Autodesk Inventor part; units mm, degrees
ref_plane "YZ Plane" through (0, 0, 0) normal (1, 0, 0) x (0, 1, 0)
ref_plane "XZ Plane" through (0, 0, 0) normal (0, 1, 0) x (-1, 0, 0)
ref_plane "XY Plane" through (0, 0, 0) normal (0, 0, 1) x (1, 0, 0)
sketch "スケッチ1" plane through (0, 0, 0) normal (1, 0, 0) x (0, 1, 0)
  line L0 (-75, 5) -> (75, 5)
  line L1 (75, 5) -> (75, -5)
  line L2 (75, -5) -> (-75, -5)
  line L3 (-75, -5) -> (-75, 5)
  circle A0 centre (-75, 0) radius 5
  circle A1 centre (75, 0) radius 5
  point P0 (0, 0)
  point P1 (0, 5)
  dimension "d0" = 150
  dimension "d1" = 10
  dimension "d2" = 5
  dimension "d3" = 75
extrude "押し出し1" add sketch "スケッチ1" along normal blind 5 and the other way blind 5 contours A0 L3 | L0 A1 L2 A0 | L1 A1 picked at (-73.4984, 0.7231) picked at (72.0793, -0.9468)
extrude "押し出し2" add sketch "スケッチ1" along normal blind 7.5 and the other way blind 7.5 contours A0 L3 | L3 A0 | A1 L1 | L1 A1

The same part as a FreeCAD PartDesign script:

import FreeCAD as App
import Part
import Sketcher
from FreeCAD import Vector
Q = App.Units.Quantity


def add_polygon(sketch, points):
    """Adds a closed chain of lines whose ends are joined by coincident constraints."""
    first, n = sketch.GeometryCount, len(points)
    for a, b in zip(points, points[1:] + points[:1]):
        sketch.addGeometry(Part.LineSegment(App.Vector(*a, 0), App.Vector(*b, 0)), False)
    for i in range(n):
        sketch.addConstraint(Sketcher.Constraint("Coincident", first + i, 2, first + (i + 1) % n, 1))

doc = App.newDocument("Part")
body = doc.addObject("PartDesign::Body", "Body")

# Sketch on YZ plane
sketch1 = doc.addObject("Sketcher::SketchObject", "Sketch")
body.addObject(sketch1)
sketch1.AttachmentSupport = (doc.YZ_Plane, [""])
sketch1.MapMode = "FlatFace"
add_polygon(sketch1, [(-75, 5), (-75, -5), (75, -5), (75, 5)])  # lines 0-3
sketch1.addConstraint([
    Sketcher.Constraint("Vertical", 0),
    Sketcher.Constraint("Horizontal", 1),
    Sketcher.Constraint("Vertical", 2),
    Sketcher.Constraint("Horizontal", 3),
    Sketcher.Constraint("Symmetric", 0, 2, 2, 2, -1, 1),
    Sketcher.Constraint("DistanceX", 1, 1, 1, 2, Q("150 mm")),
    Sketcher.Constraint("DistanceY", 0, 2, 0, 1, Q("10 mm")),
])
pad1 = doc.addObject("PartDesign::Pad", "Pad")
body.addObject(pad1)
pad1.Profile = sketch1
pad1.Type = "TwoLengths"
pad1.Length = 5
pad1.Length2 = 5

# Sketch on YZ plane
sketch2 = doc.addObject("Sketcher::SketchObject", "Sketch001")
body.addObject(sketch2)
sketch2.AttachmentSupport = (doc.YZ_Plane, [""])
sketch2.MapMode = "FlatFace"
sketch2.addGeometry([
    Part.Circle(Vector(-75, 0, 0), Vector(0, 0, 1), 5),
    Part.Circle(Vector(75, 0, 0), Vector(0, 0, 1), 5),
], False)
sketch2.addConstraint([
    Sketcher.Constraint("Equal", 0, 1),
    Sketcher.Constraint("Symmetric", 0, 3, 1, 3, -1, 1),
    Sketcher.Constraint("PointOnObject", 0, 3, -1),
    Sketcher.Constraint("Diameter", 0, Q("10 mm")),
    Sketcher.Constraint("DistanceX", 0, 3, -1, 1, Q("75 mm")),
])
pad2 = doc.addObject("PartDesign::Pad", "Pad001")
body.addObject(pad2)
pad2.Profile = sketch2
pad2.Type = "TwoLengths"
pad2.Length = 7.5
pad2.Length2 = 7.5

doc.recompute()
